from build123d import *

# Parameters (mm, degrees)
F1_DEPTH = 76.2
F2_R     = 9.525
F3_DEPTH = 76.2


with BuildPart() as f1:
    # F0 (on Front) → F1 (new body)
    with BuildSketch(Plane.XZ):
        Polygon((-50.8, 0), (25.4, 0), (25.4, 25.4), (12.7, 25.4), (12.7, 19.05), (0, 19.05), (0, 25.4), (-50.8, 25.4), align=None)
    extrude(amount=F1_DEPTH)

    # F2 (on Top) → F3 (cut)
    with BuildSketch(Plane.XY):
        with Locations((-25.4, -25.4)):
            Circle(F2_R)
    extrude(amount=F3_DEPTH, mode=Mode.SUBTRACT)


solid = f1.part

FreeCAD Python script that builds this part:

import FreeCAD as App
import Part
import Sketcher
from FreeCAD import Vector
Q = App.Units.Quantity

doc = App.newDocument("Part")
params = doc.addObject("Spreadsheet::Sheet", "Params")
for row, (alias, value) in enumerate([
    ("sketch1_width", "3 in"),
    ("sketch1_width2", "2 in"),
    ("sketch1_height", "1 in"),
    ("sketch1_height2", "0.25 in"),
    ("pad1_length", "3 in"),
    ("sketch2_diameter", "0.75 in"),
    ("pocket1_length", "3 in"),
], start=1):
    params.set(f"A{row}", alias)
    params.set(f"B{row}", "=" + value)
    params.setAlias(f"B{row}", alias)

body = doc.addObject("PartDesign::Body", "Body")

sketch1 = body.newObject("Sketcher::SketchObject", "Sketch")
sketch1.AttachmentSupport = (doc.getObject("XZ_Plane"), [""])
sketch1.MapMode = "FlatFace"
sketch1.addGeometry(Part.LineSegment(Vector(-50.8, 0, 0), Vector(25.4, 0, 0)), False)
sketch1.addGeometry(Part.LineSegment(Vector(25.4, 0, 0), Vector(25.4, 25.4, 0)), False)
sketch1.addGeometry(Part.LineSegment(Vector(25.4, 25.4, 0), Vector(12.7, 25.4, 0)), False)
sketch1.addGeometry(Part.LineSegment(Vector(12.7, 25.4, 0), Vector(12.7, 19.05, 0)), False)
sketch1.addGeometry(Part.LineSegment(Vector(12.7, 19.05, 0), Vector(0, 19.05, 0)), False)
sketch1.addGeometry(Part.LineSegment(Vector(0, 19.05, 0), Vector(0, 25.4, 0)), False)
sketch1.addGeometry(Part.LineSegment(Vector(0, 25.4, 0), Vector(-50.8, 25.4, 0)), False)
sketch1.addGeometry(Part.LineSegment(Vector(-50.8, 25.4, 0), Vector(-50.8, 0, 0)), False)
sketch1.addConstraint(Sketcher.Constraint("Coincident", 0, 2, 1, 1))
sketch1.addConstraint(Sketcher.Constraint("Coincident", 1, 2, 2, 1))
sketch1.addConstraint(Sketcher.Constraint("Coincident", 2, 2, 3, 1))
sketch1.addConstraint(Sketcher.Constraint("Coincident", 3, 2, 4, 1))
sketch1.addConstraint(Sketcher.Constraint("Coincident", 4, 2, 5, 1))
sketch1.addConstraint(Sketcher.Constraint("Coincident", 5, 2, 6, 1))
sketch1.addConstraint(Sketcher.Constraint("Coincident", 6, 2, 7, 1))
sketch1.addConstraint(Sketcher.Constraint("Coincident", 7, 2, 0, 1))
sketch1.addConstraint(Sketcher.Constraint("Horizontal", 0))
sketch1.addConstraint(Sketcher.Constraint("Vertical", 1))
sketch1.addConstraint(Sketcher.Constraint("Horizontal", 2))
sketch1.addConstraint(Sketcher.Constraint("Vertical", 3))
sketch1.addConstraint(Sketcher.Constraint("Horizontal", 4))
sketch1.addConstraint(Sketcher.Constraint("Vertical", 5))
sketch1.addConstraint(Sketcher.Constraint("Horizontal", 6))
sketch1.addConstraint(Sketcher.Constraint("Vertical", 7))
sketch1.addConstraint(Sketcher.Constraint("PointOnObject", 0, 2, -1))
sketch1.addConstraint(Sketcher.Constraint("PointOnObject", 4, 2, -2))
sketch1.addConstraint(Sketcher.Constraint("Horizontal", 2, 2, 5, 2))
sketch1.addConstraint(Sketcher.Constraint("Equal", 2, 4))
sketch1.addConstraint(Sketcher.Constraint("DistanceX", 0, 1, 0, 2, Q("3 in")))
sketch1.addConstraint(Sketcher.Constraint("DistanceX", 6, 2, 6, 1, Q("2 in")))
sketch1.addConstraint(Sketcher.Constraint("DistanceY", 1, 1, 1, 2, Q("1 in")))
sketch1.addConstraint(Sketcher.Constraint("DistanceY", 3, 2, 3, 1, Q("0.25 in")))
sketch1.setExpression("Constraints[20]", "Params.sketch1_width")
sketch1.setExpression("Constraints[21]", "Params.sketch1_width2")
sketch1.setExpression("Constraints[22]", "Params.sketch1_height")
sketch1.setExpression("Constraints[23]", "Params.sketch1_height2")
pad1 = body.newObject("PartDesign::Pad", "Pad")
pad1.Profile = sketch1
pad1.setExpression("Length", "Params.pad1_length")

sketch2 = body.newObject("Sketcher::SketchObject", "Sketch001")
sketch2.AttachmentSupport = (doc.getObject("XY_Plane"), [""])
sketch2.MapMode = "FlatFace"
sketch2.addGeometry(Part.Circle(Vector(-25.4, -25.4, 0), Vector(0, 0, 1), 9.525), False)
sketch2.addConstraint(Sketcher.Constraint("Diameter", 0, Q("0.75 in")))
sketch2.addConstraint(Sketcher.Constraint("DistanceX", 0, 3, -1, 1, Q("1 in")))
sketch2.addConstraint(Sketcher.Constraint("DistanceY", 0, 3, -1, 1, Q("1 in")))
sketch2.setExpression("Constraints[0]", "Params.sketch2_diameter")
pocket1 = body.newObject("PartDesign::Pocket", "Pocket")
pocket1.Profile = sketch2
pocket1.setExpression("Length", "Params.pocket1_length")
pocket1.Reversed = True

doc.recompute()
